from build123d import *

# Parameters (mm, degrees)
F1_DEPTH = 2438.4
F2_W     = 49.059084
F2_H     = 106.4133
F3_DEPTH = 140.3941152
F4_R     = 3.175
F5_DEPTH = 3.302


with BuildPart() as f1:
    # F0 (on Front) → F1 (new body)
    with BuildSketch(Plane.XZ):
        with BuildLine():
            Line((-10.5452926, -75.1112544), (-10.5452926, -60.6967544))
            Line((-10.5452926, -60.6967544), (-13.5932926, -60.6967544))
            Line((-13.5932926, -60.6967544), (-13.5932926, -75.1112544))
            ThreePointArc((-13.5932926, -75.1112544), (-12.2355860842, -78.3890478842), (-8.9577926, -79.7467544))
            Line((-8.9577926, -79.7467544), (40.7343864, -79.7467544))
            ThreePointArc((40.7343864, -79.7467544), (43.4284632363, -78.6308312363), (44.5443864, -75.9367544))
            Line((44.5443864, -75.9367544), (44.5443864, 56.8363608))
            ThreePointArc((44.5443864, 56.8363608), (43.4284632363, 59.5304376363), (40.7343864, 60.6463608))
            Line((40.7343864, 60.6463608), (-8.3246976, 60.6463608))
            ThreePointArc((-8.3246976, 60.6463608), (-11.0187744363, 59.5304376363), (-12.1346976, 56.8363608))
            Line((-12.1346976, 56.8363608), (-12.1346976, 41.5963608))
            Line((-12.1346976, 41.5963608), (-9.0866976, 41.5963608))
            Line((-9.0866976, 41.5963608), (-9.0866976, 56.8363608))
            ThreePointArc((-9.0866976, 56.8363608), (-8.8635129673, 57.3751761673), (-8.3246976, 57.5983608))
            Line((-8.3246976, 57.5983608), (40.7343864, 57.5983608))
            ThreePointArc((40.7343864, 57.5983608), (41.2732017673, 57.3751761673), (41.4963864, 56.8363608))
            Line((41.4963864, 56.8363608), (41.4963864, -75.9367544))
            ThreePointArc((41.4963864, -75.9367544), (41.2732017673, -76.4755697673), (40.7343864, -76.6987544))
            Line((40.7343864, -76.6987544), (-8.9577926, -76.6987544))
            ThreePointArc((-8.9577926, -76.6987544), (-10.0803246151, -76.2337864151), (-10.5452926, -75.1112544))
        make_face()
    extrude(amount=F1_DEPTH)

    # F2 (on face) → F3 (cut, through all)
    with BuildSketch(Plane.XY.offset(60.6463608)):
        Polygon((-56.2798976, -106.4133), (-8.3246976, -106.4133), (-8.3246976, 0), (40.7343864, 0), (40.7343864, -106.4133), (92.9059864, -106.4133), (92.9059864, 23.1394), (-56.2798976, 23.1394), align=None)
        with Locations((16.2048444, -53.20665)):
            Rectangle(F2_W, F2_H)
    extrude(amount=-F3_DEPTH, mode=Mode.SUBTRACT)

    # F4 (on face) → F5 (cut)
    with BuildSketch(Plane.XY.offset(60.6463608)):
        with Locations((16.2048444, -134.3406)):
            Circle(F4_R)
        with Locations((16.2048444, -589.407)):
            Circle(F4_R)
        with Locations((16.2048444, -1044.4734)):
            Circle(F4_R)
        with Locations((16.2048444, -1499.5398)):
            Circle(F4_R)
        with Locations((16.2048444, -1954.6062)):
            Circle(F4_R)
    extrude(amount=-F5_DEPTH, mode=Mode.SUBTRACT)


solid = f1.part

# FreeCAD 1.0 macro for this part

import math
import FreeCAD as App
import Part
import Sketcher
Q = App.Units.Quantity


def add_polygon(sketch, points):
    """Adds a closed chain of lines whose ends are joined by coincident constraints."""
    first, n = sketch.GeometryCount, len(points)
    for a, b in zip(points, points[1:] + points[:1]):
        sketch.addGeometry(Part.LineSegment(App.Vector(*a, 0), App.Vector(*b, 0)), False)
    for i in range(n):
        sketch.addConstraint(Sketcher.Constraint("Coincident", first + i, 2, first + (i + 1) % n, 1))

doc = App.newDocument("Part")
body = doc.addObject("PartDesign::Body", "Body")

sketch1 = body.newObject("Sketcher::SketchObject", "Sketch")
sketch1.AttachmentSupport = (doc.getObject("XZ_Plane"), [""])
sketch1.MapMode = "FlatFace"
sketch1.addGeometry([
    Part.LineSegment(App.Vector(-10.5, -75.1, 0), App.Vector(-10.5, -60.7, 0)),
    Part.LineSegment(App.Vector(-10.5, -60.7, 0), App.Vector(-13.6, -60.7, 0)),
    Part.LineSegment(App.Vector(-13.6, -60.7, 0), App.Vector(-13.6, -75.1, 0)),
    Part.ArcOfCircle(Part.Circle(App.Vector(-9, -75.1, 0), App.Vector(0, 0, 1), 4.6), math.radians(180), math.radians(270)),
    Part.LineSegment(App.Vector(-9, -79.7, 0), App.Vector(40.7, -79.7, 0)),
    Part.ArcOfCircle(Part.Circle(App.Vector(40.7, -75.9, 0), App.Vector(0, 0, 1), 3.8), math.radians(-90), math.radians(0)),
    Part.LineSegment(App.Vector(44.5, -75.9, 0), App.Vector(44.5, 56.8, 0)),
    Part.ArcOfCircle(Part.Circle(App.Vector(40.7, 56.8, 0), App.Vector(0, 0, 1), 3.8), math.radians(0), math.radians(90)),
    Part.LineSegment(App.Vector(40.7, 60.6, 0), App.Vector(-8.3, 60.6, 0)),
    Part.ArcOfCircle(Part.Circle(App.Vector(-8.3, 56.8, 0), App.Vector(0, 0, 1), 3.8), math.radians(90), math.radians(180)),
    Part.LineSegment(App.Vector(-12.1, 56.8, 0), App.Vector(-12.1, 41.6, 0)),
    Part.LineSegment(App.Vector(-12.1, 41.6, 0), App.Vector(-9.1, 41.6, 0)),
    Part.LineSegment(App.Vector(-9.1, 41.6, 0), App.Vector(-9.1, 56.8, 0)),
    Part.ArcOfCircle(Part.Circle(App.Vector(-8.3, 56.8, 0), App.Vector(0, 0, 1), 0.8), math.radians(90), math.radians(180)),
    Part.LineSegment(App.Vector(-8.3, 57.6, 0), App.Vector(40.7, 57.6, 0)),
    Part.ArcOfCircle(Part.Circle(App.Vector(40.7, 56.8, 0), App.Vector(0, 0, 1), 0.8), math.radians(0), math.radians(90)),
    Part.LineSegment(App.Vector(41.5, 56.8, 0), App.Vector(41.5, -75.9, 0)),
    Part.ArcOfCircle(Part.Circle(App.Vector(40.7, -75.9, 0), App.Vector(0, 0, 1), 0.8), math.radians(-90), math.radians(0)),
    Part.LineSegment(App.Vector(40.7, -76.7, 0), App.Vector(-9, -76.7, 0)),
    Part.ArcOfCircle(Part.Circle(App.Vector(-9, -75.1, 0), App.Vector(0, 0, 1), 1.6), math.radians(180), math.radians(270)),
], False)
sketch1.addConstraint([
    Sketcher.Constraint("Coincident", 0, 2, 1, 1),
    Sketcher.Constraint("Coincident", 1, 2, 2, 1),
    Sketcher.Constraint("Tangent", 2, 2, 3, 1),
    Sketcher.Constraint("Tangent", 3, 2, 4, 1),
    Sketcher.Constraint("Tangent", 4, 2, 5, 1),
    Sketcher.Constraint("Tangent", 5, 2, 6, 1),
    Sketcher.Constraint("Tangent", 6, 2, 7, 1),
    Sketcher.Constraint("Tangent", 7, 2, 8, 1),
    Sketcher.Constraint("Tangent", 8, 2, 9, 1),
    Sketcher.Constraint("Tangent", 9, 2, 10, 1),
    Sketcher.Constraint("Coincident", 10, 2, 11, 1),
    Sketcher.Constraint("Coincident", 11, 2, 12, 1),
    Sketcher.Constraint("Tangent", 12, 2, 13, 2),
    Sketcher.Constraint("Tangent", 13, 1, 14, 1),
    Sketcher.Constraint("Tangent", 14, 2, 15, 2),
    Sketcher.Constraint("Tangent", 15, 1, 16, 1),
    Sketcher.Constraint("Tangent", 16, 2, 17, 2),
    Sketcher.Constraint("Tangent", 17, 1, 18, 1),
    Sketcher.Constraint("Tangent", 18, 2, 19, 2),
    Sketcher.Constraint("Tangent", 19, 1, 0, 1),
    Sketcher.Constraint("Vertical", 0),
    Sketcher.Constraint("Horizontal", 1),
    Sketcher.Constraint("Vertical", 2),
    Sketcher.Constraint("Horizontal", 4),
    Sketcher.Constraint("Vertical", 6),
    Sketcher.Constraint("Horizontal", 8),
    Sketcher.Constraint("Vertical", 10),
    Sketcher.Constraint("Horizontal", 11),
    Sketcher.Constraint("Vertical", 12),
    Sketcher.Constraint("Horizontal", 14),
    Sketcher.Constraint("Vertical", 16),
    Sketcher.Constraint("Horizontal", 18),
    Sketcher.Constraint("Coincident", 13, 3, 9, 3),
    Sketcher.Constraint("Coincident", 15, 3, 7, 3),
    Sketcher.Constraint("Coincident", 17, 3, 5, 3),
    Sketcher.Constraint("Coincident", 19, 3, 3, 3),
    Sketcher.Constraint("Equal", 5, 7),
    Sketcher.Constraint("Equal", 7, 9),
    Sketcher.Constraint("Radius", 5, Q("0.15 in")),
    Sketcher.Constraint("Radius", 13, Q("0.03 in")),
    Sketcher.Constraint("DistanceY", 10, 2, 10, 1, Q("0.6 in")),
    Sketcher.Constraint("Radius", 19, Q("0.0625 in")),
    Sketcher.Constraint("DistanceY", 5, 3, 0, 2, Q("0.6 in")),
    Sketcher.Constraint("DistanceX", 4, 1, 4, 2, 49.692179),
    Sketcher.Constraint("DistanceX", 8, 2, 8, 1, 49.059084),
    Sketcher.Constraint("DistanceY", 6, 1, 6, 2, 132.773115),
    Sketcher.Constraint("DistanceY", -1, 1, 7, 3, 56.836361),
    Sketcher.Constraint("DistanceX", 3, 3, -1, 1, 8.957793),
])
pad1 = body.newObject("PartDesign::Pad", "Pad")
pad1.Profile = sketch1
pad1.Length = Q("96 in")

sketch2 = body.newObject("Sketcher::SketchObject", "Sketch001")
sketch2.AttachmentSupport = (doc.getObject("XY_Plane"), [""])
sketch2.MapMode = "FlatFace"
sketch2.AttachmentOffset = App.Placement(App.Vector(0, 0, 60.646361), App.Rotation())
add_polygon(sketch2, [(-56, -106), (93, -106), (93, 23), (-56, 23)])
sketch2.addConstraint([
    Sketcher.Constraint("Horizontal", 0),
    Sketcher.Constraint("Vertical", 1),
    Sketcher.Constraint("Horizontal", 2),
    Sketcher.Constraint("Vertical", 3),
    Sketcher.Constraint("DistanceY", 1, 1, 1, 2, Q("5.1005 in")),
    Sketcher.Constraint("DistanceY", -1, 1, 1, 2, Q("0.911 in")),
    Sketcher.Constraint("DistanceX", 0, 1, 0, 2, 149.185884),
    Sketcher.Constraint("DistanceX", -1, 1, 0, 2, 92.905986),
])
pocket1 = body.newObject("PartDesign::Pocket", "Pocket")
pocket1.Profile = sketch2
pocket1.Type = "ThroughAll"

sketch3 = body.newObject("Sketcher::SketchObject", "Sketch002")
sketch3.AttachmentSupport = (doc.getObject("XY_Plane"), [""])
sketch3.MapMode = "FlatFace"
sketch3.AttachmentOffset = App.Placement(App.Vector(0, 0, 60.646361), App.Rotation())
sketch3.addGeometry([
    Part.Circle(App.Vector(16.2, -134.3, 0), App.Vector(0, 0, 1), 3.2),
    Part.Circle(App.Vector(16.2, -589.4, 0), App.Vector(0, 0, 1), 3.2),
    Part.Circle(App.Vector(16.2, -1044.5, 0), App.Vector(0, 0, 1), 3.2),
    Part.Circle(App.Vector(16.2, -1499.5, 0), App.Vector(0, 0, 1), 3.2),
    Part.Circle(App.Vector(16.2, -1954.6, 0), App.Vector(0, 0, 1), 3.2),
], False)
sketch3.addConstraint([
    Sketcher.Constraint("Equal", 0, 1),
    Sketcher.Constraint("Equal", 1, 2),
    Sketcher.Constraint("Equal", 2, 3),
    Sketcher.Constraint("Equal", 3, 4),
    Sketcher.Constraint("Vertical", 0, 3, 1, 3),
    Sketcher.Constraint("Vertical", 1, 3, 2, 3),
    Sketcher.Constraint("Vertical", 2, 3, 3, 3),
    Sketcher.Constraint("Vertical", 3, 3, 4, 3),
    Sketcher.Constraint("Diameter", 0, Q("0.25 in")),
    Sketcher.Constraint("DistanceY", 0, 3, -1, 1, Q("5.289 in")),
    Sketcher.Constraint("DistanceY", 1, 3, -1, 1, Q("23.205 in")),
    Sketcher.Constraint("DistanceY", 2, 3, -1, 1, Q("41.121 in")),
    Sketcher.Constraint("DistanceY", 3, 3, -1, 1, Q("59.037 in")),
    Sketcher.Constraint("DistanceY", 4, 3, -1, 1, Q("76.953 in")),
    Sketcher.Constraint("DistanceX", -1, 1, 0, 3, 16.204844),
])
pocket2 = body.newObject("PartDesign::Pocket", "Pocket001")
pocket2.Profile = sketch3
pocket2.Length = Q("0.13 in")

doc.recompute()
